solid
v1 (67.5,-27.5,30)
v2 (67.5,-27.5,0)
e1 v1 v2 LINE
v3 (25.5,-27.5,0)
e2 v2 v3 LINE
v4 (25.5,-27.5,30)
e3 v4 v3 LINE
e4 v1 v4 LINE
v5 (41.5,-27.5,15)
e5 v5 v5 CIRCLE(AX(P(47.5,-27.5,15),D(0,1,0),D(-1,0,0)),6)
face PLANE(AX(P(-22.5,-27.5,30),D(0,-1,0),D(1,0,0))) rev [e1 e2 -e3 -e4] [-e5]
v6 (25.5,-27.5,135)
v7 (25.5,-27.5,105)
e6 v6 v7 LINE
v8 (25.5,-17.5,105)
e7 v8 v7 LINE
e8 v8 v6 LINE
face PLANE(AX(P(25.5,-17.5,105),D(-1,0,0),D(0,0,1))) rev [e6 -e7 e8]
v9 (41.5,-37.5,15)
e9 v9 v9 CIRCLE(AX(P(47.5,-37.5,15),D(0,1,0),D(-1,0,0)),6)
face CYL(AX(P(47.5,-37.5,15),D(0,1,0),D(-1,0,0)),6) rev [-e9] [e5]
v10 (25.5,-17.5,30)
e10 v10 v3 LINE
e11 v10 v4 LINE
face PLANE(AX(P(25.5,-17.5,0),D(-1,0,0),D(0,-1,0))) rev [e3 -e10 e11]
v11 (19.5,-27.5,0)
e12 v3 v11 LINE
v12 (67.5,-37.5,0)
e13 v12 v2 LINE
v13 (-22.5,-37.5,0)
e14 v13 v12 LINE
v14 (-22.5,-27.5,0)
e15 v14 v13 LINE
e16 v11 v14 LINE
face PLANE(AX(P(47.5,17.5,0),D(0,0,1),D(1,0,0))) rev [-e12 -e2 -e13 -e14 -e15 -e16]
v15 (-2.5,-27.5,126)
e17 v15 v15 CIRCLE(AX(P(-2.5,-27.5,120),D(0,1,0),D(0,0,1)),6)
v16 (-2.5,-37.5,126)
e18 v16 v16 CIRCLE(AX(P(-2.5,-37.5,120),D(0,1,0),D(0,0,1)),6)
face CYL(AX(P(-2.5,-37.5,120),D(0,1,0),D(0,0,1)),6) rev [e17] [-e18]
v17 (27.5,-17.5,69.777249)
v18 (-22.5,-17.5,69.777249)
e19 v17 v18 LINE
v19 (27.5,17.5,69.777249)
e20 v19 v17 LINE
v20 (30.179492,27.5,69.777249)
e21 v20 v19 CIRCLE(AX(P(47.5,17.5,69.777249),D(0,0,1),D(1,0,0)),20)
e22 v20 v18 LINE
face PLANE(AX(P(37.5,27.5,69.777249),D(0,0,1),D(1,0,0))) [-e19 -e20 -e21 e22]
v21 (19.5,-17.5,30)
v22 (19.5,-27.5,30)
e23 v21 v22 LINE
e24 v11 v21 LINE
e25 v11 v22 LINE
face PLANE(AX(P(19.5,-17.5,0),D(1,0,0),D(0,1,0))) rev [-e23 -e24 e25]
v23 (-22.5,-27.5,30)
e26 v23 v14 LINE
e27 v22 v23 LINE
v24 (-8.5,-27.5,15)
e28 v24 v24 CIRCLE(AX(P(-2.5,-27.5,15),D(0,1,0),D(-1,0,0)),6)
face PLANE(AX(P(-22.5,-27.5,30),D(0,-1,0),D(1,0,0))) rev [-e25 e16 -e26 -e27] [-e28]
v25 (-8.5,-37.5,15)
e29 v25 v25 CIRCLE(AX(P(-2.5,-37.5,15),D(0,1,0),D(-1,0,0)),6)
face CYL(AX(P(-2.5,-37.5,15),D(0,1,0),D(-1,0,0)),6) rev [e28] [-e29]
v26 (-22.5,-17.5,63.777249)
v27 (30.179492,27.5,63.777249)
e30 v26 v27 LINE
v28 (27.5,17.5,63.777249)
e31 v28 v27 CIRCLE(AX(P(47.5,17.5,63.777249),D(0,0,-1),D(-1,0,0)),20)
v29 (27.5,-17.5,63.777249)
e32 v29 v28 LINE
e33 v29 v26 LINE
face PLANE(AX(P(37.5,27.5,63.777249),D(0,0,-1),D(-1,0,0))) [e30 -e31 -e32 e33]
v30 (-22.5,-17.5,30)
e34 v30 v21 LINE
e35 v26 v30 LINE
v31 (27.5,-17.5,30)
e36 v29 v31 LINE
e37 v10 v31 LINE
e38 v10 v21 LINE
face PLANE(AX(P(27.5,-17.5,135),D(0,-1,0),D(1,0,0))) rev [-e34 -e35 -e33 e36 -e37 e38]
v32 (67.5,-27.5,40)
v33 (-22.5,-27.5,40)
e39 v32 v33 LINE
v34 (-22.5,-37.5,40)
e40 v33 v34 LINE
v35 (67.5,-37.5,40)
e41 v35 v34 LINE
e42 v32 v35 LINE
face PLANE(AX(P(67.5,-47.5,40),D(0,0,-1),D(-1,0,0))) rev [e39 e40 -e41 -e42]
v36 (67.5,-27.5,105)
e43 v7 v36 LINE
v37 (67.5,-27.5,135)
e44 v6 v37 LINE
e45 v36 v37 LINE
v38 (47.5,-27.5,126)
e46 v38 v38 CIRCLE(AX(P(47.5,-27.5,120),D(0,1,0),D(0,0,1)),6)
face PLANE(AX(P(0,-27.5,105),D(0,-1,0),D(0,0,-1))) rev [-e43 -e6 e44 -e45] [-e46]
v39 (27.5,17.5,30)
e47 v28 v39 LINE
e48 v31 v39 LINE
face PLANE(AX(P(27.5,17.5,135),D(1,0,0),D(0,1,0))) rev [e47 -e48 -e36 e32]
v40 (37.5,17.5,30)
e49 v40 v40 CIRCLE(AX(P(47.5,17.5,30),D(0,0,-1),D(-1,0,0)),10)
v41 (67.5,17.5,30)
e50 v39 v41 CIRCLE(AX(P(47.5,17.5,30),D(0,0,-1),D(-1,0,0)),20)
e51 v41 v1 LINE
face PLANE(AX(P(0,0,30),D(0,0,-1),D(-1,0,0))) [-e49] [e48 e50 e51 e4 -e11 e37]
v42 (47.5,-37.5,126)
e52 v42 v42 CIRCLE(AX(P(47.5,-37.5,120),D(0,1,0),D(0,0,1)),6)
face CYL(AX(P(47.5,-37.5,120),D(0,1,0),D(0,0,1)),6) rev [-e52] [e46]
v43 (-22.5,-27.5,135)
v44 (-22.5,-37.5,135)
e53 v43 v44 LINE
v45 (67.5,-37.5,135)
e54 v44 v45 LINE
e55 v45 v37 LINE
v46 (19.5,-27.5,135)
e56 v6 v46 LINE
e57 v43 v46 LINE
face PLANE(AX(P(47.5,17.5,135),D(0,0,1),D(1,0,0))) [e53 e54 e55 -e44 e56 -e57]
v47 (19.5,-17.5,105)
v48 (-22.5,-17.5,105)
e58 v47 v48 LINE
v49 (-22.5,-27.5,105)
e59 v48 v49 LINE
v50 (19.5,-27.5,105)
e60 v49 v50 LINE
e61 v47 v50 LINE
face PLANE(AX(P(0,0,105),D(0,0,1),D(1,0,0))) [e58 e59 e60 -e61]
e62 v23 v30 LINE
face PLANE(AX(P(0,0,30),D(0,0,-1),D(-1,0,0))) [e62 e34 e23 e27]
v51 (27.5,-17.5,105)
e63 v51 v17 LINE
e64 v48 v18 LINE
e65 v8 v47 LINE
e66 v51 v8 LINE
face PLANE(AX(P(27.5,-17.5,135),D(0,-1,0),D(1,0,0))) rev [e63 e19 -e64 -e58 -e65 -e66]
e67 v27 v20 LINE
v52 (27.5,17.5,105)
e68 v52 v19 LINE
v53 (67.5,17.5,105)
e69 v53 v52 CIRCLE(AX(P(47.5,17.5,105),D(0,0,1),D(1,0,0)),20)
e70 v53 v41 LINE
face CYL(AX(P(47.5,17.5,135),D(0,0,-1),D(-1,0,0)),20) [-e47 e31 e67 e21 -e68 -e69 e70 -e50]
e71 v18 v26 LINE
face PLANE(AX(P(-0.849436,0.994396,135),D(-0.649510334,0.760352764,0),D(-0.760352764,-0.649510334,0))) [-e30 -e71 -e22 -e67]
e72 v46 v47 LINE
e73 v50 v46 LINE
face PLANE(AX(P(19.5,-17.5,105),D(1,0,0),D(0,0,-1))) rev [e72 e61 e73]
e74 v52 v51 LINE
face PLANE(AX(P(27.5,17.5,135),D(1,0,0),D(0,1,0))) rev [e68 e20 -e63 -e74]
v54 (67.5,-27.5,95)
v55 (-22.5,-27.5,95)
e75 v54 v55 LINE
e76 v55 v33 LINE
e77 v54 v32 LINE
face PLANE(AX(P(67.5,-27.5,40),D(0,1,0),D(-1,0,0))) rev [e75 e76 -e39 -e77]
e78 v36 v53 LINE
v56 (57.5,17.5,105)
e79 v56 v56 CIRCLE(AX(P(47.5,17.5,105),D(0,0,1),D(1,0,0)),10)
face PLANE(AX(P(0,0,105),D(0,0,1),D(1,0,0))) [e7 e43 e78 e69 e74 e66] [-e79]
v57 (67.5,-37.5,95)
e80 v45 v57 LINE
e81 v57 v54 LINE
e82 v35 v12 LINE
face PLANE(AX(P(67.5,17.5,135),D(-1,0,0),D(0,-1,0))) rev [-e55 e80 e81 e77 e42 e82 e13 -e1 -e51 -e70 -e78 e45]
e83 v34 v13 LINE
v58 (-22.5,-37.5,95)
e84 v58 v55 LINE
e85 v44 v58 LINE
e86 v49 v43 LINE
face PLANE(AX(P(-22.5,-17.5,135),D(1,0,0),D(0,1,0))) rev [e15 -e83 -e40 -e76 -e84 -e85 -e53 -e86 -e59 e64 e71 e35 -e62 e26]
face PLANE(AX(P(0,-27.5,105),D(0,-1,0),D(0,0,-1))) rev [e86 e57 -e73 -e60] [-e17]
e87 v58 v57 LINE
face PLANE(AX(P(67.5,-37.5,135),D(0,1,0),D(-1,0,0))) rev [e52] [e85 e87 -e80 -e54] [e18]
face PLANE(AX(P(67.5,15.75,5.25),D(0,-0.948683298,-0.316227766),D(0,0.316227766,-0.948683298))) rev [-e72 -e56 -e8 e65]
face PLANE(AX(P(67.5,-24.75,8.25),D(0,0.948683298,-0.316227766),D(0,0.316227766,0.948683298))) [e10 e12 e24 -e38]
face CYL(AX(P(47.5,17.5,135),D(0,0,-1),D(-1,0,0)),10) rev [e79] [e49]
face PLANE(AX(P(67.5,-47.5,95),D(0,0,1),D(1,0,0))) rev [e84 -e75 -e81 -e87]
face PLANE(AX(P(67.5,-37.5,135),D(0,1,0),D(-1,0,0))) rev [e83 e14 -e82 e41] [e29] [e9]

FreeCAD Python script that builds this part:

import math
import FreeCAD as App
import Part
import Sketcher
Q = App.Units.Quantity


def add_polygon(sketch, points):
    """Adds a closed chain of lines whose ends are joined by coincident constraints."""
    first, n = sketch.GeometryCount, len(points)
    for a, b in zip(points, points[1:] + points[:1]):
        sketch.addGeometry(Part.LineSegment(App.Vector(*a, 0), App.Vector(*b, 0)), False)
    for i in range(n):
        sketch.addConstraint(Sketcher.Constraint("Coincident", first + i, 2, first + (i + 1) % n, 1))

doc = App.newDocument("Part")
body = doc.addObject("PartDesign::Body", "Body")

sketch1 = doc.addObject("Sketcher::SketchObject", "Sketch")
body.addObject(sketch1)
sketch1.AttachmentSupport = (doc.XY_Plane, [""])
sketch1.MapMode = "FlatFace"
sketch1.addGeometry(Part.LineSegment(App.Vector(68, -38, 0), App.Vector(68, 18, 0)), False)
sketch1.addGeometry(Part.ArcOfCircle(Part.Circle(App.Vector(48, 18, 0), App.Vector(0, 0, 1), 20), math.radians(0), math.radians(180)), False)
sketch1.addGeometry(Part.LineSegment(App.Vector(28, 18, 0), App.Vector(28, -18, 0)), False)
sketch1.addGeometry(Part.LineSegment(App.Vector(28, -18, 0), App.Vector(-22, -18, 0)), False)
sketch1.addGeometry(Part.LineSegment(App.Vector(-22, -18, 0), App.Vector(-22, -38, 0)), False)
sketch1.addGeometry(Part.LineSegment(App.Vector(-22, -38, 0), App.Vector(68, -38, 0)), False)
sketch1.addGeometry(Part.Circle(App.Vector(48, 18, 0), App.Vector(0, 0, 1), 10), False)
sketch1.addConstraint(Sketcher.Constraint("Tangent", 0, 2, 1, 1))
sketch1.addConstraint(Sketcher.Constraint("Tangent", 1, 2, 2, 1))
sketch1.addConstraint(Sketcher.Constraint("Coincident", 2, 2, 3, 1))
sketch1.addConstraint(Sketcher.Constraint("Coincident", 3, 2, 4, 1))
sketch1.addConstraint(Sketcher.Constraint("Coincident", 4, 2, 5, 1))
sketch1.addConstraint(Sketcher.Constraint("Coincident", 5, 2, 0, 1))
sketch1.addConstraint(Sketcher.Constraint("Vertical", 0))
sketch1.addConstraint(Sketcher.Constraint("Vertical", 2))
sketch1.addConstraint(Sketcher.Constraint("Horizontal", 3))
sketch1.addConstraint(Sketcher.Constraint("Vertical", 4))
sketch1.addConstraint(Sketcher.Constraint("Horizontal", 5))
sketch1.addConstraint(Sketcher.Constraint("Coincident", 6, 3, 1, 3))
sketch1.addConstraint(Sketcher.Constraint("Diameter", 6, Q("20 mm")))
sketch1.addConstraint(Sketcher.Constraint("Radius", 1, Q("20 mm")))
sketch1.addConstraint(Sketcher.Constraint("DistanceX", 3, 2, 3, 1, Q("50 mm")))
sketch1.addConstraint(Sketcher.Constraint("DistanceY", 0, 1, 0, 2, Q("55 mm")))
sketch1.addConstraint(Sketcher.Constraint("DistanceY", 2, 2, 2, 1, Q("35 mm")))
sketch1.addConstraint(Sketcher.Constraint("DistanceX", -1, 1, 1, 3, Q("47.5 mm")))
sketch1.addConstraint(Sketcher.Constraint("DistanceY", -1, 1, 1, 3, Q("17.5 mm")))
pad1 = doc.addObject("PartDesign::Pad", "Pad")
body.addObject(pad1)
pad1.Profile = sketch1
pad1.Length = 135

sketch2 = doc.addObject("Sketcher::SketchObject", "Sketch001")
body.addObject(sketch2)
sketch2.AttachmentSupport = (doc.XY_Plane, [""])
sketch2.MapMode = "FlatFace"
sketch2.AttachmentOffset = App.Placement(App.Vector(0, 0, 135), App.Rotation())
add_polygon(sketch2, [(-22, -18), (-22, -28), (68, -28), (68, -18)])
sketch2.addConstraint(Sketcher.Constraint("Vertical", 0))
sketch2.addConstraint(Sketcher.Constraint("Horizontal", 1))
sketch2.addConstraint(Sketcher.Constraint("Vertical", 2))
sketch2.addConstraint(Sketcher.Constraint("Horizontal", 3))
sketch2.addConstraint(Sketcher.Constraint("DistanceX", 1, 1, 1, 2, Q("90 mm")))
sketch2.addConstraint(Sketcher.Constraint("DistanceY", 0, 2, 0, 1, Q("10 mm")))
sketch2.addConstraint(Sketcher.Constraint("DistanceX", 0, 2, -1, 1, Q("22.5 mm")))
sketch2.addConstraint(Sketcher.Constraint("DistanceY", 0, 2, -1, 1, Q("27.5 mm")))
pocket1 = doc.addObject("PartDesign::Pocket", "Pocket")
body.addObject(pocket1)
pocket1.Profile = sketch2
pocket1.Length = 30

sketch3 = doc.addObject("Sketcher::SketchObject", "Sketch002")
body.addObject(sketch3)
sketch3.AttachmentSupport = (doc.XY_Plane, [""])
sketch3.MapMode = "FlatFace"
add_polygon(sketch3, [(68, -18), (68, -28), (-22, -28), (-22, -18)])
sketch3.addConstraint(Sketcher.Constraint("Vertical", 0))
sketch3.addConstraint(Sketcher.Constraint("Horizontal", 1))
sketch3.addConstraint(Sketcher.Constraint("Vertical", 2))
sketch3.addConstraint(Sketcher.Constraint("Horizontal", 3))
sketch3.addConstraint(Sketcher.Constraint("DistanceX", 1, 2, 1, 1, Q("90 mm")))
sketch3.addConstraint(Sketcher.Constraint("DistanceY", 0, 2, 0, 1, Q("10 mm")))
sketch3.addConstraint(Sketcher.Constraint("DistanceX", -1, 1, 0, 2, Q("67.5 mm")))
sketch3.addConstraint(Sketcher.Constraint("DistanceY", 0, 2, -1, 1, Q("27.5 mm")))
pocket2 = doc.addObject("PartDesign::Pocket", "Pocket001")
body.addObject(pocket2)
pocket2.Profile = sketch3
pocket2.Length = 30
pocket2.Reversed = True

sketch4 = doc.addObject("Sketcher::SketchObject", "Sketch003")
body.addObject(sketch4)
sketch4.AttachmentSupport = (doc.XY_Plane, [""])
sketch4.MapMode = "FlatFace"
sketch4.addGeometry(Part.LineSegment(App.Vector(68, 18, 0), App.Vector(68, -18, 0)), False)
sketch4.addGeometry(Part.LineSegment(App.Vector(68, -18, 0), App.Vector(28, -18, 0)), False)
sketch4.addGeometry(Part.LineSegment(App.Vector(28, -18, 0), App.Vector(28, 18, 0)), False)
sketch4.addGeometry(Part.ArcOfCircle(Part.Circle(App.Vector(48, 18, 0), App.Vector(0, 0, 1), 20), math.radians(0), math.radians(180)), False)
sketch4.addConstraint(Sketcher.Constraint("Coincident", 0, 2, 1, 1))
sketch4.addConstraint(Sketcher.Constraint("Coincident", 1, 2, 2, 1))
sketch4.addConstraint(Sketcher.Constraint("Tangent", 2, 2, 3, 2))
sketch4.addConstraint(Sketcher.Constraint("Tangent", 3, 1, 0, 1))
sketch4.addConstraint(Sketcher.Constraint("Vertical", 0))
sketch4.addConstraint(Sketcher.Constraint("Horizontal", 1))
sketch4.addConstraint(Sketcher.Constraint("Vertical", 2))
sketch4.addConstraint(Sketcher.Constraint("Radius", 3, Q("20 mm")))
sketch4.addConstraint(Sketcher.Constraint("DistanceY", 0, 2, 0, 1, Q("35 mm")))
sketch4.addConstraint(Sketcher.Constraint("DistanceX", -1, 1, 3, 3, Q("47.5 mm")))
sketch4.addConstraint(Sketcher.Constraint("DistanceY", -1, 1, 3, 3, Q("17.5 mm")))
pocket3 = doc.addObject("PartDesign::Pocket", "Pocket002")
body.addObject(pocket3)
pocket3.Profile = sketch4
pocket3.Length = 30
pocket3.Reversed = True

sketch5 = doc.addObject("Sketcher::SketchObject", "Sketch004")
body.addObject(sketch5)
sketch5.AttachmentSupport = (doc.XY_Plane, [""])
sketch5.MapMode = "FlatFace"
sketch5.AttachmentOffset = App.Placement(App.Vector(0, 0, 105), App.Rotation())
sketch5.addGeometry(Part.LineSegment(App.Vector(28, -18, 0), App.Vector(68, -18, 0)), False)
sketch5.addGeometry(Part.LineSegment(App.Vector(68, -18, 0), App.Vector(68, 18, 0)), False)
sketch5.addGeometry(Part.ArcOfCircle(Part.Circle(App.Vector(48, 18, 0), App.Vector(0, 0, 1), 20), math.radians(0), math.radians(180)), False)
sketch5.addGeometry(Part.LineSegment(App.Vector(28, 18, 0), App.Vector(28, -18, 0)), False)
sketch5.addConstraint(Sketcher.Constraint("Coincident", 0, 2, 1, 1))
sketch5.addConstraint(Sketcher.Constraint("Tangent", 1, 2, 2, 1))
sketch5.addConstraint(Sketcher.Constraint("Tangent", 2, 2, 3, 1))
sketch5.addConstraint(Sketcher.Constraint("Coincident", 3, 2, 0, 1))
sketch5.addConstraint(Sketcher.Constraint("Horizontal", 0))
sketch5.addConstraint(Sketcher.Constraint("Vertical", 1))
sketch5.addConstraint(Sketcher.Constraint("Vertical", 3))
sketch5.addConstraint(Sketcher.Constraint("Radius", 2, Q("20 mm")))
sketch5.addConstraint(Sketcher.Constraint("DistanceY", 1, 1, 1, 2, Q("35 mm")))
sketch5.addConstraint(Sketcher.Constraint("DistanceX", -1, 1, 2, 3, Q("47.5 mm")))
sketch5.addConstraint(Sketcher.Constraint("DistanceY", -1, 1, 2, 3, Q("17.5 mm")))
pocket4 = doc.addObject("PartDesign::Pocket", "Pocket003")
body.addObject(pocket4)
pocket4.Profile = sketch5
pocket4.Length = 30
pocket4.Reversed = True

sketch6 = doc.addObject("Sketcher::SketchObject", "Sketch005")
body.addObject(sketch6)
sketch6.AttachmentSupport = (doc.YZ_Plane, [""])
sketch6.MapMode = "FlatFace"
sketch6.AttachmentOffset = App.Placement(App.Vector(0, 0, -22.5), App.Rotation())
add_polygon(sketch6, [(-28, 40), (-48, 40), (-48, 95), (-28, 95)])
sketch6.addConstraint(Sketcher.Constraint("Horizontal", 0))
sketch6.addConstraint(Sketcher.Constraint("Vertical", 1))
sketch6.addConstraint(Sketcher.Constraint("Horizontal", 2))
sketch6.addConstraint(Sketcher.Constraint("Vertical", 3))
sketch6.addConstraint(Sketcher.Constraint("DistanceX", 0, 2, 0, 1, Q("20 mm")))
sketch6.addConstraint(Sketcher.Constraint("DistanceY", 1, 1, 1, 2, Q("55 mm")))
sketch6.addConstraint(Sketcher.Constraint("DistanceY", -1, 1, 0, 2, Q("40 mm")))
sketch6.addConstraint(Sketcher.Constraint("DistanceX", 0, 2, -1, 1, Q("47.5 mm")))
pocket5 = doc.addObject("PartDesign::Pocket", "Pocket004")
body.addObject(pocket5)
pocket5.Profile = sketch6
pocket5.Type = "ThroughAll"
pocket5.Reversed = True

sketch7 = doc.addObject("Sketcher::SketchObject", "Sketch006")
body.addObject(sketch7)
sketch7.AttachmentSupport = (doc.XZ_Plane, [""])
sketch7.MapMode = "FlatFace"
sketch7.AttachmentOffset = App.Placement(App.Vector(0, 0, 27.5), App.Rotation())
sketch7.addGeometry(Part.Circle(App.Vector(-2, 120, 0), App.Vector(0, 0, 1), 6), False)
sketch7.addGeometry(Part.Circle(App.Vector(48, 120, 0), App.Vector(0, 0, 1), 6), False)
sketch7.addConstraint(Sketcher.Constraint("Equal", 0, 1))
sketch7.addConstraint(Sketcher.Constraint("Horizontal", 0, 3, 1, 3))
sketch7.addConstraint(Sketcher.Constraint("Diameter", 0, Q("12 mm")))
sketch7.addConstraint(Sketcher.Constraint("DistanceY", -1, 1, 0, 3, Q("120 mm")))
sketch7.addConstraint(Sketcher.Constraint("DistanceX", 0, 3, 1, 3, Q("50 mm")))
sketch7.addConstraint(Sketcher.Constraint("DistanceX", 0, 3, -1, 1, Q("2.5 mm")))
pocket6 = doc.addObject("PartDesign::Pocket", "Pocket005")
body.addObject(pocket6)
pocket6.Profile = sketch7
pocket6.Type = "ThroughAll"
pocket6.Reversed = True

sketch8 = doc.addObject("Sketcher::SketchObject", "Sketch007")
body.addObject(sketch8)
sketch8.AttachmentSupport = (doc.XZ_Plane, [""])
sketch8.MapMode = "FlatFace"
sketch8.AttachmentOffset = App.Placement(App.Vector(0, 0, 27.5), App.Rotation())
sketch8.addGeometry(Part.Circle(App.Vector(48, 15, 0), App.Vector(0, 0, 1), 6), False)
sketch8.addGeometry(Part.Circle(App.Vector(-2, 15, 0), App.Vector(0, 0, 1), 6), False)
sketch8.addConstraint(Sketcher.Constraint("Equal", 0, 1))
sketch8.addConstraint(Sketcher.Constraint("Horizontal", 0, 3, 1, 3))
sketch8.addConstraint(Sketcher.Constraint("Diameter", 0, Q("12 mm")))
sketch8.addConstraint(Sketcher.Constraint("DistanceY", -1, 1, 0, 3, Q("15 mm")))
sketch8.addConstraint(Sketcher.Constraint("DistanceX", 1, 3, 0, 3, Q("50 mm")))
sketch8.addConstraint(Sketcher.Constraint("DistanceX", -1, 1, 0, 3, Q("47.5 mm")))
pocket7 = doc.addObject("PartDesign::Pocket", "Pocket006")
body.addObject(pocket7)
pocket7.Profile = sketch8
pocket7.Type = "ThroughAll"
pocket7.Reversed = True

sketch9 = doc.addObject("Sketcher::SketchObject", "Sketch008")
body.addObject(sketch9)
sketch9.AttachmentSupport = (doc.XZ_Plane, [""])
sketch9.MapMode = "FlatFace"
sketch9.AttachmentOffset = App.Placement(App.Vector(0, 0, 27.5), App.Rotation())
add_polygon(sketch9, [(20, 105), (20, 135), (26, 135), (26, 105)])
sketch9.addConstraint(Sketcher.Constraint("Vertical", 0))
sketch9.addConstraint(Sketcher.Constraint("Horizontal", 1))
sketch9.addConstraint(Sketcher.Constraint("Vertical", 2))
sketch9.addConstraint(Sketcher.Constraint("Horizontal", 3))
sketch9.addConstraint(Sketcher.Constraint("DistanceX", 1, 1, 1, 2, Q("6 mm")))
sketch9.addConstraint(Sketcher.Constraint("DistanceY", 0, 1, 0, 2, Q("30 mm")))
sketch9.addConstraint(Sketcher.Constraint("DistanceY", -1, 1, 0, 2, Q("135 mm")))
sketch9.addConstraint(Sketcher.Constraint("DistanceX", -1, 1, 0, 2, Q("19.5 mm")))
pad2 = doc.addObject("PartDesign::Pad", "Pad001")
body.addObject(pad2)
pad2.Profile = sketch9
pad2.Length = 10
pad2.Reversed = True

sketch10 = doc.addObject("Sketcher::SketchObject", "Sketch009")
body.addObject(sketch10)
sketch10.AttachmentSupport = (doc.XZ_Plane, [""])
sketch10.MapMode = "FlatFace"
sketch10.AttachmentOffset = App.Placement(App.Vector(0, 0, 27.5), App.Rotation())
add_polygon(sketch10, [(20, 0), (20, 30), (26, 30), (26, 0)])
sketch10.addConstraint(Sketcher.Constraint("Vertical", 0))
sketch10.addConstraint(Sketcher.Constraint("Horizontal", 1))
sketch10.addConstraint(Sketcher.Constraint("Vertical", 2))
sketch10.addConstraint(Sketcher.Constraint("Horizontal", 3))
sketch10.addConstraint(Sketcher.Constraint("PointOnObject", 2, 2, -1))
sketch10.addConstraint(Sketcher.Constraint("DistanceX", 1, 1, 1, 2, Q("6 mm")))
sketch10.addConstraint(Sketcher.Constraint("DistanceY", 0, 1, 0, 2, Q("30 mm")))
sketch10.addConstraint(Sketcher.Constraint("DistanceX", -1, 1, 0, 2, Q("19.5 mm")))
pad3 = doc.addObject("PartDesign::Pad", "Pad002")
body.addObject(pad3)
pad3.Profile = sketch10
pad3.Length = 10
pad3.Reversed = True

sketch11 = doc.addObject("Sketcher::SketchObject", "Sketch010")
body.addObject(sketch11)
sketch11.AttachmentSupport = (doc.YZ_Plane, [""])
sketch11.MapMode = "FlatFace"
sketch11.AttachmentOffset = App.Placement(App.Vector(0, 0, 19.5), App.Rotation())
add_polygon(sketch11, [(-18, 105), (-28, 135), (-18, 135)])
sketch11.addConstraint(Sketcher.Constraint("Horizontal", 1))
sketch11.addConstraint(Sketcher.Constraint("Vertical", 2))
sketch11.addConstraint(Sketcher.Constraint("DistanceX", 1, 1, 1, 2, Q("10 mm")))
sketch11.addConstraint(Sketcher.Constraint("DistanceY", 2, 2, 2, 1, Q("30 mm")))
sketch11.addConstraint(Sketcher.Constraint("DistanceY", -1, 1, 0, 2, Q("135 mm")))
sketch11.addConstraint(Sketcher.Constraint("DistanceX", 0, 2, -1, 1, Q("27.5 mm")))
pocket8 = doc.addObject("PartDesign::Pocket", "Pocket007")
body.addObject(pocket8)
pocket8.Profile = sketch11
pocket8.Type = "ThroughAll"
pocket8.Midplane = True

sketch12 = doc.addObject("Sketcher::SketchObject", "Sketch011")
body.addObject(sketch12)
sketch12.AttachmentSupport = (doc.YZ_Plane, [""])
sketch12.MapMode = "FlatFace"
sketch12.AttachmentOffset = App.Placement(App.Vector(0, 0, 19.5), App.Rotation())
add_polygon(sketch12, [(-28, 0), (-18, 30), (-18, 0)])
sketch12.addConstraint(Sketcher.Constraint("Vertical", 1))
sketch12.addConstraint(Sketcher.Constraint("Horizontal", 2))
sketch12.addConstraint(Sketcher.Constraint("PointOnObject", 1, 2, -1))
sketch12.addConstraint(Sketcher.Constraint("DistanceX", 2, 2, 2, 1, Q("10 mm")))
sketch12.addConstraint(Sketcher.Constraint("DistanceY", 1, 2, 1, 1, Q("30 mm")))
sketch12.addConstraint(Sketcher.Constraint("DistanceX", 0, 2, -1, 1, Q("17.5 mm")))
pocket9 = doc.addObject("PartDesign::Pocket", "Pocket008")
body.addObject(pocket9)
pocket9.Profile = sketch12
pocket9.Type = "ThroughAll"
pocket9.Midplane = True

sketch13 = doc.addObject("Sketcher::SketchObject", "Sketch012")
body.addObject(sketch13)
sketch13.AttachmentSupport = (doc.YZ_Plane, [""])
sketch13.MapMode = "FlatFace"
sketch13.AttachmentOffset = App.Placement(App.Vector(0, 0, 27.5), App.Rotation())
add_polygon(sketch13, [(28, 64), (-18, 64), (-18, 70), (28, 70)])
sketch13.addConstraint(Sketcher.Constraint("Horizontal", 0))
sketch13.addConstraint(Sketcher.Constraint("Vertical", 1))
sketch13.addConstraint(Sketcher.Constraint("Horizontal", 2))
sketch13.addConstraint(Sketcher.Constraint("Vertical", 3))
sketch13.addConstraint(Sketcher.Constraint("DistanceX", 0, 2, 0, 1, Q("45 mm")))
sketch13.addConstraint(Sketcher.Constraint("DistanceY", 1, 1, 1, 2, Q("6 mm")))
sketch13.addConstraint(Sketcher.Constraint("DistanceX", 0, 2, -1, 1, Q("17.5 mm")))
sketch13.addConstraint(Sketcher.Constraint("DistanceY", -1, 1, 0, 2, Q("63.777249 mm")))
pad4 = doc.addObject("PartDesign::Pad", "Pad003")
body.addObject(pad4)
pad4.Profile = sketch13
pad4.Type = "TwoLengths"
pad4.Length = 50
pad4.Length2 = 10
pad4.Reversed = True

sketch14 = doc.addObject("Sketcher::SketchObject", "Sketch013")
body.addObject(sketch14)
sketch14.AttachmentSupport = (doc.XY_Plane, [""])
sketch14.MapMode = "FlatFace"
sketch14.AttachmentOffset = App.Placement(App.Vector(0, 0, 63.777249), App.Rotation())
add_polygon(sketch14, [(30, 28), (-22, -18), (-22, 28)])
sketch14.addConstraint(Sketcher.Constraint("Vertical", 1))
sketch14.addConstraint(Sketcher.Constraint("Horizontal", 2))
sketch14.addConstraint(Sketcher.Constraint("DistanceY", 1, 1, 1, 2, Q("45 mm")))
sketch14.addConstraint(Sketcher.Constraint("DistanceX", 0, 2, -1, 1, Q("22.5 mm")))
sketch14.addConstraint(Sketcher.Constraint("DistanceY", 0, 2, -1, 1, Q("17.5 mm")))
sketch14.addConstraint(Sketcher.Constraint("DistanceX", 2, 1, 2, 2, Q("52.679492 mm")))
pocket10 = doc.addObject("PartDesign::Pocket", "Pocket009")
body.addObject(pocket10)
pocket10.Profile = sketch14
pocket10.Type = "ThroughAll"
pocket10.Midplane = True

doc.recompute()
